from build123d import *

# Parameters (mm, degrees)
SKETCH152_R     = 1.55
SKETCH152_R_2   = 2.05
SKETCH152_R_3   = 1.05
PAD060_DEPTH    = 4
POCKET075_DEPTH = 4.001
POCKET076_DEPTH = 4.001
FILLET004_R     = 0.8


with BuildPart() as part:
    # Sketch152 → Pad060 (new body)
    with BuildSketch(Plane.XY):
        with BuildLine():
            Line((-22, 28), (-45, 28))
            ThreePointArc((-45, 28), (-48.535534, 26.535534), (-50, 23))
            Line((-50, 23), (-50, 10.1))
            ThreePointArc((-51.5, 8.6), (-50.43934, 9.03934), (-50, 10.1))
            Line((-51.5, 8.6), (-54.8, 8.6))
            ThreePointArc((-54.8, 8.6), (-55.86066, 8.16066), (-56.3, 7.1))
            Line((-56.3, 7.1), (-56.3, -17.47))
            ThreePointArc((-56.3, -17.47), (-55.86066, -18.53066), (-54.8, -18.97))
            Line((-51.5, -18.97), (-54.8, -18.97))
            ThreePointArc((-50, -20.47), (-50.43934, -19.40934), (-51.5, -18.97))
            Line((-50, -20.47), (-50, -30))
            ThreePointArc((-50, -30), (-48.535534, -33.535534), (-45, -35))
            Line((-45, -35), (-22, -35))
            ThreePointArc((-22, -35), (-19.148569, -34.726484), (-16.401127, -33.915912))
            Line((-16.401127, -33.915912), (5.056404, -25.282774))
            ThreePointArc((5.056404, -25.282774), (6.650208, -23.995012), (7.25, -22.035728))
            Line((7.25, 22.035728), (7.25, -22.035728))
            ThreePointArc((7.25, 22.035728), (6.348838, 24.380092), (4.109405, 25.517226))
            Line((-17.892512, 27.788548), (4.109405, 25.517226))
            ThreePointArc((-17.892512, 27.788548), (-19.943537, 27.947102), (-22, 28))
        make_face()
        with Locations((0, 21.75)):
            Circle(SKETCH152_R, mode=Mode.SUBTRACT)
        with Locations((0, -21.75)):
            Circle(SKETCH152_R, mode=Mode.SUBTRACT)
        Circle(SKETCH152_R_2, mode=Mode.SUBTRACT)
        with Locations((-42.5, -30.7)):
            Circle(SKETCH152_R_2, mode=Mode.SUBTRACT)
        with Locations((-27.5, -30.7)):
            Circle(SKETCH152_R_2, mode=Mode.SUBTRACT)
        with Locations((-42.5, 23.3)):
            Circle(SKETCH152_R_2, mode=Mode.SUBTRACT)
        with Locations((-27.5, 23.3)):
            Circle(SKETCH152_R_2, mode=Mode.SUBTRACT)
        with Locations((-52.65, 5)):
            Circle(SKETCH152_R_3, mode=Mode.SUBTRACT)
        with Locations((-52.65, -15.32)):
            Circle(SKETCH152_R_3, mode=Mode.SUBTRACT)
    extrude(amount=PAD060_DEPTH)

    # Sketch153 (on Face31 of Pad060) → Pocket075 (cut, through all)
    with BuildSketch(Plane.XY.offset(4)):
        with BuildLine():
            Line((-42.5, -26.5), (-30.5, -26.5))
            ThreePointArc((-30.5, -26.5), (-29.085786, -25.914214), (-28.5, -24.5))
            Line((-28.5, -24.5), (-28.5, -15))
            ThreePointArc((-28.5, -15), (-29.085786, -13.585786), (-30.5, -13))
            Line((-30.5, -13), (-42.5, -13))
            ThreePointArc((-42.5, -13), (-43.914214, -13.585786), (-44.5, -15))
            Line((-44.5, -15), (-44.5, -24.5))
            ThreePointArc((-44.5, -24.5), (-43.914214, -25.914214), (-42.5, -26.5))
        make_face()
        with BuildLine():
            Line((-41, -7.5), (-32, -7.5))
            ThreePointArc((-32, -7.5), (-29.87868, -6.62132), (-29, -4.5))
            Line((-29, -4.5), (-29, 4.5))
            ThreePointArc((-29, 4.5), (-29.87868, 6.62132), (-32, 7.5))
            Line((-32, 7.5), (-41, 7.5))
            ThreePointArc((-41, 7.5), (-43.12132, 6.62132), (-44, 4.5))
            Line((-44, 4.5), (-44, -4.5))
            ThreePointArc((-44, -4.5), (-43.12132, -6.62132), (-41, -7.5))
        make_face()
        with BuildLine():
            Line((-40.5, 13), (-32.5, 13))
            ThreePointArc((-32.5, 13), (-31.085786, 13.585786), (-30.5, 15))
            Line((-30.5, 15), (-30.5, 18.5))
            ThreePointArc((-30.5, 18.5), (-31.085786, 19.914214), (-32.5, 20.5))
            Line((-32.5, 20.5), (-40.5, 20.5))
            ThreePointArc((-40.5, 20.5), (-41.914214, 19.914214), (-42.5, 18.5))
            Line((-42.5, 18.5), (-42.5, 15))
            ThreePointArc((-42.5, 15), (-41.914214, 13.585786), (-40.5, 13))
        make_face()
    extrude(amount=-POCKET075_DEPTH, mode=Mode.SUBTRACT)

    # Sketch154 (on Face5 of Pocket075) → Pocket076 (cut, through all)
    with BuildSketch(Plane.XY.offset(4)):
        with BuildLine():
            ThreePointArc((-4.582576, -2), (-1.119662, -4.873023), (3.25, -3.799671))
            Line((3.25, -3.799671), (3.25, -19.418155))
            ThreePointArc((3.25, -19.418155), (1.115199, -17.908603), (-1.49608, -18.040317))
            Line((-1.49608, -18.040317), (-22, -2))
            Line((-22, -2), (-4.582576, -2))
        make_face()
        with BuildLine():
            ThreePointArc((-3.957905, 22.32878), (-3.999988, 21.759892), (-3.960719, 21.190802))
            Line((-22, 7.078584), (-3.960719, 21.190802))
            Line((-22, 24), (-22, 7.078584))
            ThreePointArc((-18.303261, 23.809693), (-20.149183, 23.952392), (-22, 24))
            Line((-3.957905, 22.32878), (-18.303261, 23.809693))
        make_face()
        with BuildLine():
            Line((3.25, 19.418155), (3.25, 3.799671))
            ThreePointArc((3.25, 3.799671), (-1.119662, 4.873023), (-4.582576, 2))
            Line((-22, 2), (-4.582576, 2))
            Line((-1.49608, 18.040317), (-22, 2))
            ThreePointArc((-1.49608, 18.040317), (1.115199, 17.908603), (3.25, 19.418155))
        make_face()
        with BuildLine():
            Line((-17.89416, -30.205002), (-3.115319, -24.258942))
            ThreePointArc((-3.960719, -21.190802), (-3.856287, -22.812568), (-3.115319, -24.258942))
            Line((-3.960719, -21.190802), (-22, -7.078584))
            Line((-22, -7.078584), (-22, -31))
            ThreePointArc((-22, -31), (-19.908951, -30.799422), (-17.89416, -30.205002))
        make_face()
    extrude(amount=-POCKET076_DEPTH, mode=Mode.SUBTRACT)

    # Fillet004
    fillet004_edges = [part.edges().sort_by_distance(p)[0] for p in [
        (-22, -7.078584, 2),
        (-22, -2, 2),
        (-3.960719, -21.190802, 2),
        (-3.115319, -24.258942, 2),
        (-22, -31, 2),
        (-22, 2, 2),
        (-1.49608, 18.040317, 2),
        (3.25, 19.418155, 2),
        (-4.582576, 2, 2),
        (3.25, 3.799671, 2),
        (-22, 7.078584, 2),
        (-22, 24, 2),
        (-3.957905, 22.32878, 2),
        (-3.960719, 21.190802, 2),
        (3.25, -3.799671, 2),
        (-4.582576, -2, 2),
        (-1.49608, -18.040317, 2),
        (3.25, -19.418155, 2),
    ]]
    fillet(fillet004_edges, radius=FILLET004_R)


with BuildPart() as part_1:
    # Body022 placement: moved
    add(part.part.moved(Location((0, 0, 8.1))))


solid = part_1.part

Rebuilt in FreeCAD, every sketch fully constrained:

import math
import FreeCAD as App
import Part
import Sketcher

V = App.Vector


def edges_at(feature, points):
    """Names of the edges that pass closest to the given points."""
    edges = feature.Shape.Edges
    near = lambda p: min(range(len(edges)), key=lambda i: edges[i].distToShape(Part.Vertex(*p))[0])
    return sorted({f"Edge{near(p) + 1}" for p in points})

doc = App.newDocument("Part")
body = doc.addObject("PartDesign::Body", "Body")

# Sketch on XY plane
sketch1 = body.newObject("Sketcher::SketchObject", "Sketch")
sketch1.AttachmentSupport = (doc.getObject("XY_Plane"), [""])
sketch1.MapMode = "FlatFace"
sketch1.addGeometry(Part.LineSegment(V(-22, 28, 0), V(-45, 28, 0)), False)
sketch1.addGeometry(Part.ArcOfCircle(Part.Circle(V(-45, 23, 0), V(0, 0, 1), 5), math.radians(89.999996), math.radians(180.000004)), False)
sketch1.addGeometry(Part.LineSegment(V(-50, 23, 0), V(-50, 10.1, 0)), False)
sketch1.addGeometry(Part.ArcOfCircle(Part.Circle(V(-51.500001, 10.100001, 0), V(0, 0, 1), 1.500001), math.radians(-89.999978), math.radians(-0.000022)), False)
sketch1.addGeometry(Part.LineSegment(V(-51.5, 8.6, 0), V(-54.8, 8.6, 0)), False)
sketch1.addGeometry(Part.ArcOfCircle(Part.Circle(V(-54.799999, 7.099999, 0), V(0, 0, 1), 1.500001), math.radians(90.000022), math.radians(179.999978)), False)
sketch1.addGeometry(Part.LineSegment(V(-56.3, 7.1, 0), V(-56.3, -17.47, 0)), False)
sketch1.addGeometry(Part.ArcOfCircle(Part.Circle(V(-54.799999, -17.469999, 0), V(0, 0, 1), 1.500001), math.radians(-179.999978), math.radians(-90.000022)), False)
sketch1.addGeometry(Part.LineSegment(V(-54.8, -18.97, 0), V(-51.5, -18.97, 0)), False)
sketch1.addGeometry(Part.ArcOfCircle(Part.Circle(V(-51.500001, -20.470001, 0), V(0, 0, 1), 1.500001), math.radians(0.000022), math.radians(89.999978)), False)
sketch1.addGeometry(Part.LineSegment(V(-50, -20.47, 0), V(-50, -30, 0)), False)
sketch1.addGeometry(Part.ArcOfCircle(Part.Circle(V(-45, -30, 0), V(0, 0, 1), 5), math.radians(179.999996), math.radians(270.000004)), False)
sketch1.addGeometry(Part.LineSegment(V(-45, -35, 0), V(-22, -35, 0)), False)
sketch1.addGeometry(Part.ArcOfCircle(Part.Circle(V(-22.000002, -19.999995, 0), V(0, 0, 1), 15.000005), math.radians(-89.999991), math.radians(-68.083299)), False)
sketch1.addGeometry(Part.LineSegment(V(-16.401127, -33.915912, 0), V(5.056404, -25.282774, 0)), False)
sketch1.addGeometry(Part.ArcOfCircle(Part.Circle(V(3.750001, -22.035728, 0), V(0, 0, 1), 3.499999), math.radians(-68.083301), math.radians(0.000004)), False)
sketch1.addGeometry(Part.LineSegment(V(7.25, -22.035728, 0), V(7.25, 22.035728, 0)), False)
sketch1.addGeometry(Part.ArcOfCircle(Part.Circle(V(3.750001, 22.035729, 0), V(0, 0, 1), 3.499999), math.radians(-0.000009), math.radians(84.106079)), False)
sketch1.addGeometry(Part.LineSegment(V(4.109405, 25.517226, 0), V(-17.892512, 27.788548, 0)), False)
sketch1.addGeometry(Part.ArcOfCircle(Part.Circle(V(-22.000002, -12.000062, 0), V(0, 0, 1), 40.000062), math.radians(84.106074), math.radians(89.999997)), False)
sketch1.addGeometry(Part.Circle(V(-42.5, -30.7, 0), V(0, 0, 1), 2.05), False)
sketch1.addGeometry(Part.Circle(V(-27.5, -30.7, 0), V(0, 0, 1), 2.05), False)
sketch1.addGeometry(Part.Circle(V(-52.65, -15.32, 0), V(0, 0, 1), 1.05), False)
sketch1.addGeometry(Part.Circle(V(0, -21.75, 0), V(0, 0, 1), 1.55), False)
sketch1.addGeometry(Part.Circle(V(-52.65, 5, 0), V(0, 0, 1), 1.05), False)
sketch1.addGeometry(Part.Circle(V(-42.5, 23.3, 0), V(0, 0, 1), 2.05), False)
sketch1.addGeometry(Part.Circle(V(-27.5, 23.3, 0), V(0, 0, 1), 2.05), False)
sketch1.addGeometry(Part.Circle(V(0, 0, 0), V(0, 0, 1), 2.05), False)
sketch1.addGeometry(Part.Circle(V(0, 21.75, 0), V(0, 0, 1), 1.55), False)
sketch1.addConstraint(Sketcher.Constraint("Tangent", 0, 2, 1, 1))
sketch1.addConstraint(Sketcher.Constraint("Tangent", 1, 2, 2, 1))
sketch1.addConstraint(Sketcher.Constraint("Tangent", 2, 2, 3, 2))
sketch1.addConstraint(Sketcher.Constraint("Tangent", 3, 1, 4, 1))
sketch1.addConstraint(Sketcher.Constraint("Tangent", 4, 2, 5, 1))
sketch1.addConstraint(Sketcher.Constraint("Tangent", 5, 2, 6, 1))
sketch1.addConstraint(Sketcher.Constraint("Tangent", 6, 2, 7, 1))
sketch1.addConstraint(Sketcher.Constraint("Tangent", 7, 2, 8, 1))
sketch1.addConstraint(Sketcher.Constraint("Tangent", 8, 2, 9, 2))
sketch1.addConstraint(Sketcher.Constraint("Tangent", 9, 1, 10, 1))
sketch1.addConstraint(Sketcher.Constraint("Tangent", 10, 2, 11, 1))
sketch1.addConstraint(Sketcher.Constraint("Tangent", 11, 2, 12, 1))
sketch1.addConstraint(Sketcher.Constraint("Tangent", 12, 2, 13, 1))
sketch1.addConstraint(Sketcher.Constraint("Tangent", 13, 2, 14, 1))
sketch1.addConstraint(Sketcher.Constraint("Tangent", 14, 2, 15, 1))
sketch1.addConstraint(Sketcher.Constraint("Tangent", 15, 2, 16, 1))
sketch1.addConstraint(Sketcher.Constraint("Tangent", 16, 2, 17, 1))
sketch1.addConstraint(Sketcher.Constraint("Tangent", 17, 2, 18, 1))
sketch1.addConstraint(Sketcher.Constraint("Tangent", 18, 2, 19, 1))
sketch1.addConstraint(Sketcher.Constraint("Tangent", 19, 2, 0, 1))
sketch1.addConstraint(Sketcher.Constraint("Horizontal", 0))
sketch1.addConstraint(Sketcher.Constraint("Vertical", 2))
sketch1.addConstraint(Sketcher.Constraint("Horizontal", 4))
sketch1.addConstraint(Sketcher.Constraint("Vertical", 6))
sketch1.addConstraint(Sketcher.Constraint("Horizontal", 8))
sketch1.addConstraint(Sketcher.Constraint("Vertical", 10))
sketch1.addConstraint(Sketcher.Constraint("Horizontal", 12))
sketch1.addConstraint(Sketcher.Constraint("Vertical", 16))
sketch1.addConstraint(Sketcher.Constraint("Coincident", 27, 3, -1, 1))
sketch1.addConstraint(Sketcher.Constraint("Equal", 3, 5))
sketch1.addConstraint(Sketcher.Constraint("Equal", 5, 7))
sketch1.addConstraint(Sketcher.Constraint("Equal", 7, 9))
sketch1.addConstraint(Sketcher.Constraint("Equal", 1, 11))
sketch1.addConstraint(Sketcher.Constraint("Equal", 15, 17))
sketch1.addConstraint(Sketcher.Constraint("Equal", 20, 21))
sketch1.addConstraint(Sketcher.Constraint("Equal", 22, 24))
sketch1.addConstraint(Sketcher.Constraint("Equal", 21, 25))
sketch1.addConstraint(Sketcher.Constraint("Equal", 25, 26))
sketch1.addConstraint(Sketcher.Constraint("Equal", 26, 27))
sketch1.addConstraint(Sketcher.Constraint("Equal", 23, 28))
sketch1.addConstraint(Sketcher.Constraint("Symmetric", 23, 3, 28, 3, -1, 1))
sketch1.addConstraint(Sketcher.Constraint("PointOnObject", 23, 3, -2))
sketch1.addConstraint(Sketcher.Constraint("Horizontal", 20, 3, 21, 3))
sketch1.addConstraint(Sketcher.Constraint("Horizontal", 25, 3, 26, 3))
sketch1.addConstraint(Sketcher.Constraint("Vertical", 3, 3, 9, 3))
sketch1.addConstraint(Sketcher.Constraint("Vertical", 13, 3, 19, 3))
sketch1.addConstraint(Sketcher.Constraint("Vertical", 22, 3, 24, 3))
sketch1.addConstraint(Sketcher.Constraint("Vertical", 20, 3, 25, 3))
sketch1.addConstraint(Sketcher.Constraint("Vertical", 21, 3, 26, 3))
sketch1.addConstraint(Sketcher.Constraint("Radius", 1, 5.0))
sketch1.addConstraint(Sketcher.Constraint("Diameter", 20, 4.1))
sketch1.addConstraint(Sketcher.Constraint("Diameter", 22, 2.1))
sketch1.addConstraint(Sketcher.Constraint("Diameter", 23, 3.1))
sketch1.addConstraint(Sketcher.Constraint("Radius", 3, 1.500001))
sketch1.addConstraint(Sketcher.Constraint("Radius", 15, 3.499999))
sketch1.addConstraint(Sketcher.Constraint("DistanceX", 0, 2, 0, 1, 23.0))
sketch1.addConstraint(Sketcher.Constraint("DistanceX", 4, 2, 4, 1, 3.3))
sketch1.addConstraint(Sketcher.Constraint("DistanceY", 2, 2, 2, 1, 12.9))
sketch1.addConstraint(Sketcher.Constraint("DistanceX", 1, 3, -1, 1, 45.0))
sketch1.addConstraint(Sketcher.Constraint("DistanceY", -1, 1, 1, 3, 23.0))
sketch1.addConstraint(Sketcher.Constraint("DistanceY", 11, 3, -1, 1, 30.0))
sketch1.addConstraint(Sketcher.Constraint("DistanceY", -1, 1, 24, 3, 5.0))
sketch1.addConstraint(Sketcher.Constraint("DistanceX", 9, 3, 20, 3, 9.000001))
sketch1.addConstraint(Sketcher.Constraint("DistanceX", 20, 3, 21, 3, 15.0))
sketch1.addConstraint(Sketcher.Constraint("DistanceY", 6, 2, 6, 1, 24.57))
sketch1.addConstraint(Sketcher.Constraint("DistanceY", 20, 3, -1, 1, 30.7))
sketch1.addConstraint(Sketcher.Constraint("DistanceY", -1, 1, 25, 3, 23.3))
sketch1.addConstraint(Sketcher.Constraint("DistanceX", -1, 1, 15, 3, 3.750001))
sketch1.addConstraint(Sketcher.Constraint("DistanceX", 22, 3, -1, 1, 52.65))
sketch1.addConstraint(Sketcher.Constraint("DistanceY", 22, 3, -1, 1, 15.32))
sketch1.addConstraint(Sketcher.Constraint("DistanceY", 23, 3, -1, 1, 21.75))
sketch1.addConstraint(Sketcher.Constraint("Radius", 19, 40.000062))
sketch1.addConstraint(Sketcher.Constraint("Radius", 13, 15.000005))
sketch1.addConstraint(Sketcher.Constraint("Distance", 14, 23.129131))
sketch1.addConstraint(Sketcher.Constraint("DistanceY", 16, 1, 16, 2, 44.071456))
pad1 = body.newObject("PartDesign::Pad", "Pad")
pad1.Profile = sketch1
pad1.Length = 4

# Sketch on XY plane
sketch2 = body.newObject("Sketcher::SketchObject", "Sketch001")
sketch2.AttachmentSupport = (doc.getObject("XY_Plane"), [""])
sketch2.MapMode = "FlatFace"
sketch2.AttachmentOffset = App.Placement(V(0, 0, 4), App.Rotation())
sketch2.addGeometry(Part.LineSegment(V(-42.5, -26.5, 0), V(-30.5, -26.5, 0)), False)
sketch2.addGeometry(Part.ArcOfCircle(Part.Circle(V(-30.5, -24.5, 0), V(0, 0, 1), 2), math.radians(-90), math.radians(0)), False)
sketch2.addGeometry(Part.LineSegment(V(-28.5, -24.5, 0), V(-28.5, -15, 0)), False)
sketch2.addGeometry(Part.ArcOfCircle(Part.Circle(V(-30.5, -15, 0), V(0, 0, 1), 2), math.radians(0), math.radians(90)), False)
sketch2.addGeometry(Part.LineSegment(V(-30.5, -13, 0), V(-42.5, -13, 0)), False)
sketch2.addGeometry(Part.ArcOfCircle(Part.Circle(V(-42.5, -15, 0), V(0, 0, 1), 2), math.radians(90), math.radians(180)), False)
sketch2.addGeometry(Part.LineSegment(V(-44.5, -15, 0), V(-44.5, -24.5, 0)), False)
sketch2.addGeometry(Part.ArcOfCircle(Part.Circle(V(-42.5, -24.5, 0), V(0, 0, 1), 2), math.radians(180), math.radians(270)), False)
sketch2.addGeometry(Part.LineSegment(V(-41, -7.5, 0), V(-32, -7.5, 0)), False)
sketch2.addGeometry(Part.ArcOfCircle(Part.Circle(V(-32, -4.5, 0), V(0, 0, 1), 3), math.radians(-90), math.radians(0)), False)
sketch2.addGeometry(Part.LineSegment(V(-29, -4.5, 0), V(-29, 4.5, 0)), False)
sketch2.addGeometry(Part.ArcOfCircle(Part.Circle(V(-32, 4.5, 0), V(0, 0, 1), 3), math.radians(0), math.radians(90)), False)
sketch2.addGeometry(Part.LineSegment(V(-32, 7.5, 0), V(-41, 7.5, 0)), False)
sketch2.addGeometry(Part.ArcOfCircle(Part.Circle(V(-41, 4.5, 0), V(0, 0, 1), 3), math.radians(90), math.radians(180)), False)
sketch2.addGeometry(Part.LineSegment(V(-44, 4.5, 0), V(-44, -4.5, 0)), False)
sketch2.addGeometry(Part.ArcOfCircle(Part.Circle(V(-41, -4.5, 0), V(0, 0, 1), 3), math.radians(-180), math.radians(-90)), False)
sketch2.addGeometry(Part.LineSegment(V(-40.5, 13, 0), V(-32.5, 13, 0)), False)
sketch2.addGeometry(Part.ArcOfCircle(Part.Circle(V(-32.5, 15, 0), V(0, 0, 1), 2), math.radians(-90), math.radians(0)), False)
sketch2.addGeometry(Part.LineSegment(V(-30.5, 15, 0), V(-30.5, 18.5, 0)), False)
sketch2.addGeometry(Part.ArcOfCircle(Part.Circle(V(-32.5, 18.5, 0), V(0, 0, 1), 2), math.radians(0), math.radians(90)), False)
sketch2.addGeometry(Part.LineSegment(V(-32.5, 20.5, 0), V(-40.5, 20.5, 0)), False)
sketch2.addGeometry(Part.ArcOfCircle(Part.Circle(V(-40.5, 18.5, 0), V(0, 0, 1), 2), math.radians(90), math.radians(180)), False)
sketch2.addGeometry(Part.LineSegment(V(-42.5, 18.5, 0), V(-42.5, 15, 0)), False)
sketch2.addGeometry(Part.ArcOfCircle(Part.Circle(V(-40.5, 15, 0), V(0, 0, 1), 2), math.radians(180), math.radians(270)), False)
sketch2.addConstraint(Sketcher.Constraint("Tangent", 0, 2, 1, 1))
sketch2.addConstraint(Sketcher.Constraint("Tangent", 1, 2, 2, 1))
sketch2.addConstraint(Sketcher.Constraint("Tangent", 2, 2, 3, 1))
sketch2.addConstraint(Sketcher.Constraint("Tangent", 3, 2, 4, 1))
sketch2.addConstraint(Sketcher.Constraint("Tangent", 4, 2, 5, 1))
sketch2.addConstraint(Sketcher.Constraint("Tangent", 5, 2, 6, 1))
sketch2.addConstraint(Sketcher.Constraint("Tangent", 6, 2, 7, 1))
sketch2.addConstraint(Sketcher.Constraint("Tangent", 7, 2, 0, 1))
sketch2.addConstraint(Sketcher.Constraint("Tangent", 8, 2, 9, 1))
sketch2.addConstraint(Sketcher.Constraint("Tangent", 9, 2, 10, 1))
sketch2.addConstraint(Sketcher.Constraint("Tangent", 10, 2, 11, 1))
sketch2.addConstraint(Sketcher.Constraint("Tangent", 11, 2, 12, 1))
sketch2.addConstraint(Sketcher.Constraint("Tangent", 12, 2, 13, 1))
sketch2.addConstraint(Sketcher.Constraint("Tangent", 13, 2, 14, 1))
sketch2.addConstraint(Sketcher.Constraint("Tangent", 14, 2, 15, 1))
sketch2.addConstraint(Sketcher.Constraint("Tangent", 15, 2, 8, 1))
sketch2.addConstraint(Sketcher.Constraint("Tangent", 16, 2, 17, 1))
sketch2.addConstraint(Sketcher.Constraint("Tangent", 17, 2, 18, 1))
sketch2.addConstraint(Sketcher.Constraint("Tangent", 18, 2, 19, 1))
sketch2.addConstraint(Sketcher.Constraint("Tangent", 19, 2, 20, 1))
sketch2.addConstraint(Sketcher.Constraint("Tangent", 20, 2, 21, 1))
sketch2.addConstraint(Sketcher.Constraint("Tangent", 21, 2, 22, 1))
sketch2.addConstraint(Sketcher.Constraint("Tangent", 22, 2, 23, 1))
sketch2.addConstraint(Sketcher.Constraint("Tangent", 23, 2, 16, 1))
sketch2.addConstraint(Sketcher.Constraint("Horizontal", 0))
sketch2.addConstraint(Sketcher.Constraint("Vertical", 2))
sketch2.addConstraint(Sketcher.Constraint("Horizontal", 4))
sketch2.addConstraint(Sketcher.Constraint("Vertical", 6))
sketch2.addConstraint(Sketcher.Constraint("Horizontal", 8))
sketch2.addConstraint(Sketcher.Constraint("Vertical", 10))
sketch2.addConstraint(Sketcher.Constraint("Horizontal", 12))
sketch2.addConstraint(Sketcher.Constraint("Vertical", 14))
sketch2.addConstraint(Sketcher.Constraint("Horizontal", 16))
sketch2.addConstraint(Sketcher.Constraint("Vertical", 18))
sketch2.addConstraint(Sketcher.Constraint("Horizontal", 20))
sketch2.addConstraint(Sketcher.Constraint("Vertical", 22))
sketch2.addConstraint(Sketcher.Constraint("Equal", 1, 3))
sketch2.addConstraint(Sketcher.Constraint("Equal", 3, 5))
sketch2.addConstraint(Sketcher.Constraint("Equal", 5, 7))
sketch2.addConstraint(Sketcher.Constraint("Equal", 9, 11))
sketch2.addConstraint(Sketcher.Constraint("Equal", 11, 13))
sketch2.addConstraint(Sketcher.Constraint("Equal", 13, 15))
sketch2.addConstraint(Sketcher.Constraint("Equal", 7, 17))
sketch2.addConstraint(Sketcher.Constraint("Equal", 17, 19))
sketch2.addConstraint(Sketcher.Constraint("Equal", 19, 21))
sketch2.addConstraint(Sketcher.Constraint("Equal", 21, 23))
sketch2.addConstraint(Sketcher.Constraint("Vertical", 3, 2, 17, 2))
sketch2.addConstraint(Sketcher.Constraint("Vertical", 7, 2, 21, 2))
sketch2.addConstraint(Sketcher.Constraint("Equal", 12, 10))
sketch2.addConstraint(Sketcher.Constraint("Radius", 1, 1.999999))
sketch2.addConstraint(Sketcher.Constraint("Radius", 9, 3.000001))
sketch2.addConstraint(Sketcher.Constraint("DistanceX", 0, 1, 0, 2, 12.0))
sketch2.addConstraint(Sketcher.Constraint("DistanceX", 8, 1, 8, 2, 9.0))
sketch2.addConstraint(Sketcher.Constraint("DistanceY", 2, 1, 2, 2, 9.5))
sketch2.addConstraint(Sketcher.Constraint("DistanceY", 18, 1, 18, 2, 3.5))
sketch2.addConstraint(Sketcher.Constraint("DistanceY", 3, 3, -1, 1, 14.999999))
sketch2.addConstraint(Sketcher.Constraint("DistanceX", 9, 3, -1, 1, 32.000001))
sketch2.addConstraint(Sketcher.Constraint("DistanceY", -1, 1, 17, 3, 14.999999))
sketch2.addConstraint(Sketcher.Constraint("DistanceY", 1, 3, 11, 3, 29.0))
sketch2.addConstraint(Sketcher.Constraint("DistanceX", 1, 3, -1, 1, 30.499999))
pocket1 = body.newObject("PartDesign::Pocket", "Pocket")
pocket1.Profile = sketch2
pocket1.Type = "ThroughAll"

# Sketch on XY plane
sketch3 = body.newObject("Sketcher::SketchObject", "Sketch002")
sketch3.AttachmentSupport = (doc.getObject("XY_Plane"), [""])
sketch3.MapMode = "FlatFace"
sketch3.AttachmentOffset = App.Placement(V(0, 0, 4), App.Rotation())
sketch3.addGeometry(Part.ArcOfCircle(Part.Circle(V(0, 0.000001, 0), V(0, 0, 1), 5.000001), math.radians(-156.42181), math.radians(-49.458408)), False)
sketch3.addGeometry(Part.LineSegment(V(-4.582576, -2, 0), V(-22, -2, 0)), False)
sketch3.addGeometry(Part.LineSegment(V(-22, -2, 0), V(-1.49608, -18.040317, 0)), False)
sketch3.addGeometry(Part.ArcOfCircle(Part.Circle(V(-0.000001, -21.750001, 0), V(0, 0, 1), 4.000001), math.radians(35.659101), math.radians(111.963738)), False)
sketch3.addGeometry(Part.LineSegment(V(3.25, -19.418155, 0), V(3.25, -3.799671, 0)), False)
sketch3.addGeometry(Part.ArcOfCircle(Part.Circle(V(-0.000049, 21.750001, 0), V(0, 0, 1), 3.999951), math.radians(171.680287), math.radians(188.036351)), False)
sketch3.addGeometry(Part.LineSegment(V(-3.957905, 22.32878, 0), V(-18.303261, 23.809693, 0)), False)
sketch3.addGeometry(Part.ArcOfCircle(Part.Circle(V(-21.999991, -11.99981, 0), V(0, 0, 1), 35.99981), math.radians(84.10605), math.radians(90.000014)), False)
sketch3.addGeometry(Part.LineSegment(V(-22, 24, 0), V(-22, 7.078584, 0)), False)
sketch3.addGeometry(Part.LineSegment(V(-22, 7.078584, 0), V(-3.960719, 21.190802, 0)), False)
sketch3.addGeometry(Part.LineSegment(V(3.25, 3.799671, 0), V(3.25, 19.418155, 0)), False)
sketch3.addGeometry(Part.ArcOfCircle(Part.Circle(V(-0.000001, 21.750001, 0), V(0, 0, 1), 4.000001), math.radians(-111.963738), math.radians(-35.659101)), False)
sketch3.addGeometry(Part.LineSegment(V(-1.49608, 18.040317, 0), V(-22, 2, 0)), False)
sketch3.addGeometry(Part.LineSegment(V(-22, 2, 0), V(-4.582576, 2, 0)), False)
sketch3.addGeometry(Part.ArcOfCircle(Part.Circle(V(0, -0.000001, 0), V(0, 0, 1), 5.000001), math.radians(49.458408), math.radians(156.42181)), False)
sketch3.addGeometry(Part.LineSegment(V(-17.89416, -30.205002, 0), V(-3.115319, -24.258942, 0)), False)
sketch3.addGeometry(Part.ArcOfCircle(Part.Circle(V(0, -21.750001, 0), V(0, 0, 1), 4), math.radians(171.963742), math.radians(218.846444)), False)
sketch3.addGeometry(Part.LineSegment(V(-3.960719, -21.190802, 0), V(-22, -7.078584, 0)), False)
sketch3.addGeometry(Part.LineSegment(V(-22, -7.078584, 0), V(-22, -31, 0)), False)
sketch3.addGeometry(Part.ArcOfCircle(Part.Circle(V(-21.999998, -20.000019, 0), V(0, 0, 1), 10.999981), math.radians(-90.000011), math.radians(-68.083274)), False)
sketch3.addConstraint(Sketcher.Constraint("Coincident", 0, 1, 1, 1))
sketch3.addConstraint(Sketcher.Constraint("Coincident", 1, 2, 2, 1))
sketch3.addConstraint(Sketcher.Constraint("Coincident", 2, 2, 3, 2))
sketch3.addConstraint(Sketcher.Constraint("Coincident", 3, 1, 4, 1))
sketch3.addConstraint(Sketcher.Constraint("Coincident", 4, 2, 0, 2))
sketch3.addConstraint(Sketcher.Constraint("Coincident", 5, 1, 6, 1))
sketch3.addConstraint(Sketcher.Constraint("Coincident", 6, 2, 7, 1))
sketch3.addConstraint(Sketcher.Constraint("Coincident", 7, 2, 8, 1))
sketch3.addConstraint(Sketcher.Constraint("Coincident", 8, 2, 9, 1))
sketch3.addConstraint(Sketcher.Constraint("Coincident", 9, 2, 5, 2))
sketch3.addConstraint(Sketcher.Constraint("Coincident", 10, 2, 11, 2))
sketch3.addConstraint(Sketcher.Constraint("Coincident", 11, 1, 12, 1))
sketch3.addConstraint(Sketcher.Constraint("Coincident", 12, 2, 13, 1))
sketch3.addConstraint(Sketcher.Constraint("Coincident", 13, 2, 14, 2))
sketch3.addConstraint(Sketcher.Constraint("Coincident", 14, 1, 10, 1))
sketch3.addConstraint(Sketcher.Constraint("Coincident", 15, 2, 16, 2))
sketch3.addConstraint(Sketcher.Constraint("Coincident", 16, 1, 17, 1))
sketch3.addConstraint(Sketcher.Constraint("Coincident", 17, 2, 18, 1))
sketch3.addConstraint(Sketcher.Constraint("Coincident", 18, 2, 19, 1))
sketch3.addConstraint(Sketcher.Constraint("Coincident", 19, 2, 15, 1))
sketch3.addConstraint(Sketcher.Constraint("Horizontal", 1))
sketch3.addConstraint(Sketcher.Constraint("Vertical", 4))
sketch3.addConstraint(Sketcher.Constraint("Vertical", 8))
sketch3.addConstraint(Sketcher.Constraint("Vertical", 10))
sketch3.addConstraint(Sketcher.Constraint("Horizontal", 13))
sketch3.addConstraint(Sketcher.Constraint("Vertical", 18))
sketch3.addConstraint(Sketcher.Constraint("Coincident", 0, 3, -1, 1))
sketch3.addConstraint(Sketcher.Constraint("Coincident", 14, 3, -1, 1))
sketch3.addConstraint(Sketcher.Constraint("Coincident", 16, 3, 3, 3))
sketch3.addConstraint(Sketcher.Constraint("PointOnObject", 3, 3, -2))
sketch3.addConstraint(Sketcher.Constraint("PointOnObject", 11, 3, -2))
sketch3.addConstraint(Sketcher.Constraint("Radius", 0, 5.000001))
sketch3.addConstraint(Sketcher.Constraint("Radius", 3, 4.000001))
sketch3.addConstraint(Sketcher.Constraint("Radius", 11, 4.000001))
sketch3.addConstraint(Sketcher.Constraint("Radius", 14, 5.000001))
sketch3.addConstraint(Sketcher.Constraint("Radius", 16, 4.0))
sketch3.addConstraint(Sketcher.Constraint("DistanceY", 0, 1, -1, 1, 2.0))
sketch3.addConstraint(Sketcher.Constraint("DistanceX", 1, 2, -1, 1, 22.0))
sketch3.addConstraint(Sketcher.Constraint("DistanceX", 7, 2, -1, 1, 22.0))
sketch3.addConstraint(Sketcher.Constraint("DistanceY", -1, 1, 7, 2, 24.0))
sketch3.addConstraint(Sketcher.Constraint("DistanceX", 12, 2, -1, 1, 22.0))
sketch3.addConstraint(Sketcher.Constraint("DistanceY", -1, 1, 12, 2, 2.0))
sketch3.addConstraint(Sketcher.Constraint("DistanceX", 17, 2, -1, 1, 22.0))
sketch3.addConstraint(Sketcher.Constraint("DistanceY", 18, 2, -1, 1, 31.0))
sketch3.addConstraint(Sketcher.Constraint("DistanceY", 3, 3, 5, 3, 43.500002))
sketch3.addConstraint(Sketcher.Constraint("DistanceY", 3, 3, -1, 1, 21.750001))
sketch3.addConstraint(Sketcher.Constraint("DistanceY", -1, 1, 11, 3, 21.750001))
sketch3.addConstraint(Sketcher.Constraint("DistanceX", -1, 1, 3, 1, 3.25))
sketch3.addConstraint(Sketcher.Constraint("DistanceX", -1, 1, 10, 2, 3.25))
sketch3.addConstraint(Sketcher.Constraint("Radius", 5, 3.999951))
sketch3.addConstraint(Sketcher.Constraint("Radius", 7, 35.99981))
sketch3.addConstraint(Sketcher.Constraint("Radius", 19, 10.999981))
sketch3.addConstraint(Sketcher.Constraint("Distance", 9, 22.903501))
sketch3.addConstraint(Sketcher.Constraint("Distance", 17, 22.903501))
sketch3.addConstraint(Sketcher.Constraint("DistanceY", 9, 2, 5, 3, 0.559199))
sketch3.addConstraint(Sketcher.Constraint("DistanceX", 16, 1, 15, 2, 0.8454))
sketch3.addConstraint(Sketcher.Constraint("DistanceY", 3, 3, 16, 1, 0.559199))
sketch3.addConstraint(Sketcher.Constraint("DistanceY", 19, 2, 16, 1, 9.0142))
sketch3.addConstraint(Sketcher.Constraint("Distance", 2, 26.03272))
sketch3.addConstraint(Sketcher.Constraint("Distance", 12, 26.03272))
sketch3.addConstraint(Sketcher.Constraint("DistanceY", 8, 2, 8, 1, 16.921416))
sketch3.addConstraint(Sketcher.Constraint("DistanceX", 7, 3, -1, 1, 21.999991))
sketch3.addConstraint(Sketcher.Constraint("DistanceY", -1, 1, 5, 1, 22.32878))
sketch3.addConstraint(Sketcher.Constraint("DistanceX", 6, 2, -1, 1, 18.303261))
sketch3.addConstraint(Sketcher.Constraint("DistanceX", 19, 2, -1, 1, 17.89416))
pocket2 = body.newObject("PartDesign::Pocket", "Pocket001")
pocket2.Profile = sketch3
pocket2.Type = "ThroughAll"
doc.recompute()

fillet = body.newObject("PartDesign::Fillet", "Fillet")
fillet.Base = (pocket2, edges_at(pocket2, [
    (-22, -7.079, 2),
    (-22, -2, 2),
    (-3.961, -21.191, 2),
    (-3.115, -24.259, 2),
    (-22, -31, 2),
    (-22, 2, 2),
    (-1.496, 18.04, 2),
    (3.25, 19.418, 2),
    (-4.583, 2, 2),
    (3.25, 3.8, 2),
    (-22, 7.079, 2),
    (-22, 24, 2),
    (-3.958, 22.329, 2),
    (-3.961, 21.191, 2),
    (3.25, -3.8, 2),
    (-4.583, -2, 2),
    (-1.496, -18.04, 2),
    (3.25, -19.418, 2),
]))
fillet.Radius = 0.8
body2 = doc.addObject("PartDesign::Body", "Body001")
doc.recompute()

body.Placement = App.Placement(V(0, 0, 8.1), App.Rotation(V(0, 0, 1), 0))
boolean = body2.newObject("PartDesign::Boolean", "Boolean")
boolean.Type = "Fuse"
boolean.addObjects([body])

doc.recompute()
